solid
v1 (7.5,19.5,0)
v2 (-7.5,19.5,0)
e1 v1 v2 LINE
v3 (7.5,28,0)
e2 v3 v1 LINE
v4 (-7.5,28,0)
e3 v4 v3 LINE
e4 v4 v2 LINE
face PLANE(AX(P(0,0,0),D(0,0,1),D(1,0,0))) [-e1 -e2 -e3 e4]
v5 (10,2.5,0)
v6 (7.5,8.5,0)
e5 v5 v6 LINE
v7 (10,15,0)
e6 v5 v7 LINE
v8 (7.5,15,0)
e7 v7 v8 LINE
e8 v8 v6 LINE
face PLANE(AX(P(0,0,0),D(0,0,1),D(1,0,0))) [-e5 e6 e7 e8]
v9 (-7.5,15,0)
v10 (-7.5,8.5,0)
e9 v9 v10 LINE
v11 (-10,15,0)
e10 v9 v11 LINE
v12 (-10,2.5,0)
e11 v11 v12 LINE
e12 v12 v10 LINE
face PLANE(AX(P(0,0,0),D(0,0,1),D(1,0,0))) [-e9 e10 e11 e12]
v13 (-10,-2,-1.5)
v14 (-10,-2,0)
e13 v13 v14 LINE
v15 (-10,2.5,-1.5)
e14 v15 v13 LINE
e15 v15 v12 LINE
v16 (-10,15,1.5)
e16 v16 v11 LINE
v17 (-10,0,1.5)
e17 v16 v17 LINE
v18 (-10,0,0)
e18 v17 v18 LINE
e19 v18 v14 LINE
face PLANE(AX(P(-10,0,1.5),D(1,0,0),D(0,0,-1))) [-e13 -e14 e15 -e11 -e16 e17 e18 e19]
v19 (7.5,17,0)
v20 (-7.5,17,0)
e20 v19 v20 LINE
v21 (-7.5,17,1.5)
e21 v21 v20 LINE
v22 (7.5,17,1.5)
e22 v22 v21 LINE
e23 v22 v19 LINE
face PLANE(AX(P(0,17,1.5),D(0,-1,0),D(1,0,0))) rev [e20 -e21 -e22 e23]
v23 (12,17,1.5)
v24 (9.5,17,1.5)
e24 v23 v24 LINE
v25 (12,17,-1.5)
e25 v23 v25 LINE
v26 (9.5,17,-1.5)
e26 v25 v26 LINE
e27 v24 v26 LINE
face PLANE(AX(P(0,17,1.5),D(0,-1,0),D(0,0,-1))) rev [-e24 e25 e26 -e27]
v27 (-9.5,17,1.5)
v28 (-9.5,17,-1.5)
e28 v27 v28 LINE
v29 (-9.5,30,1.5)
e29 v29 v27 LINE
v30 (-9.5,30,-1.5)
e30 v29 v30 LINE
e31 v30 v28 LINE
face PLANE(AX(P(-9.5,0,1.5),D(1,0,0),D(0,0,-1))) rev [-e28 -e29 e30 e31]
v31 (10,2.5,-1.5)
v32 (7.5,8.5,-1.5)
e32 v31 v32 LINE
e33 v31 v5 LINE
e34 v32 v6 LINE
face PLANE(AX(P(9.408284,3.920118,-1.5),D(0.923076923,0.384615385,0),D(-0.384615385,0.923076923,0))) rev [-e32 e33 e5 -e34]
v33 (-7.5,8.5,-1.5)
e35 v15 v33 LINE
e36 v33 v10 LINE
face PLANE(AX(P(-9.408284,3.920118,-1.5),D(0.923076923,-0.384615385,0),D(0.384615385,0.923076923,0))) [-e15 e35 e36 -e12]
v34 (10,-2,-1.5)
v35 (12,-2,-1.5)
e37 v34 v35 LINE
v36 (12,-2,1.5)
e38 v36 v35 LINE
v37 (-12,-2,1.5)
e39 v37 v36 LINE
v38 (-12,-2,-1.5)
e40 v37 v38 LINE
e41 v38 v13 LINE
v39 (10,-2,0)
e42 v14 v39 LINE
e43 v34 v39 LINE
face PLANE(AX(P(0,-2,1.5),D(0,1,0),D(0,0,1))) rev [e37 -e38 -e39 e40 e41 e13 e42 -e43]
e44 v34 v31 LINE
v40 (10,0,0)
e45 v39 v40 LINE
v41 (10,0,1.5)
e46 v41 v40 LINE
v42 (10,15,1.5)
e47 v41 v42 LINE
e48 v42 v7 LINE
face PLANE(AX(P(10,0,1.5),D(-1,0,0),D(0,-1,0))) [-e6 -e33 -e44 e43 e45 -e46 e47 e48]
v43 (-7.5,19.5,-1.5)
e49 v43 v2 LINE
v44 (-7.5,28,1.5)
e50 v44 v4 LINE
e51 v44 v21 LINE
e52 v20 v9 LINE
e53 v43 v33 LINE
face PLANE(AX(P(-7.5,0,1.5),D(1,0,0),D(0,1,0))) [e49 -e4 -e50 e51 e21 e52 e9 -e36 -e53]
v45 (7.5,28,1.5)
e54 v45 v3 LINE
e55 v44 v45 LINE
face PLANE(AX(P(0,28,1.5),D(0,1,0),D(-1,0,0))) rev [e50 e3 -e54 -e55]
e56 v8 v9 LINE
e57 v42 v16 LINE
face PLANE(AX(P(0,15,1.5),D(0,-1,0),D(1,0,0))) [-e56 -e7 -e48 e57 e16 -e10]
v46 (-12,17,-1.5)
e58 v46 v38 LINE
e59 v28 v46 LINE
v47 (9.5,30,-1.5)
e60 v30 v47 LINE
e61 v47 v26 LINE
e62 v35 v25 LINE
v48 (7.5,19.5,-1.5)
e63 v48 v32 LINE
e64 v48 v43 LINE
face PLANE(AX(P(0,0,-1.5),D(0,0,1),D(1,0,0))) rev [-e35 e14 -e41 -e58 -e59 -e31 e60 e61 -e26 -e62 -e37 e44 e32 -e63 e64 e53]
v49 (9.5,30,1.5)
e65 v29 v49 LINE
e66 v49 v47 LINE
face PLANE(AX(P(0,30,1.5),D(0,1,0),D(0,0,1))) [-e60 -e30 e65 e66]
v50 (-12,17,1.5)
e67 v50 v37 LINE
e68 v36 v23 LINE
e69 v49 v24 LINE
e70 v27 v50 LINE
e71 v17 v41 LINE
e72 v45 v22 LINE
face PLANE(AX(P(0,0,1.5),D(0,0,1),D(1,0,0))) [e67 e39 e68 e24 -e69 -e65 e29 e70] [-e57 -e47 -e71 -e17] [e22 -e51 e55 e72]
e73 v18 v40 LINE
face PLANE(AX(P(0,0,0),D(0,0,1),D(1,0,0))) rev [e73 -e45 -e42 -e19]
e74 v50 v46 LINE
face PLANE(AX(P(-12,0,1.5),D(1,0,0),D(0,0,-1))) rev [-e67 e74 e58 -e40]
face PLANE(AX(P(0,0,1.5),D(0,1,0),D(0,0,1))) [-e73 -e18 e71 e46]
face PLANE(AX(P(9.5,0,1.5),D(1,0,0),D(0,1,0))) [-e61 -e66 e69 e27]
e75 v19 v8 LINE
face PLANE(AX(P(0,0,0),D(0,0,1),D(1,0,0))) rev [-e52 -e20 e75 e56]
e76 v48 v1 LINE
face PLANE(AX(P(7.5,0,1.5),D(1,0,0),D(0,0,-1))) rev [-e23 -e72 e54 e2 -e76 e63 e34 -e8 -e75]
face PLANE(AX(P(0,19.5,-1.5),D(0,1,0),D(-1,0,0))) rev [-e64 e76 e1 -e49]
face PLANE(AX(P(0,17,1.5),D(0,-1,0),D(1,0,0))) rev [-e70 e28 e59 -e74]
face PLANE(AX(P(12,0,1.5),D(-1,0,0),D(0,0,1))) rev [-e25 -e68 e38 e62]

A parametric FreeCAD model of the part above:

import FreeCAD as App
import Part
import Sketcher
from FreeCAD import Vector

doc = App.newDocument("Part")
body = doc.addObject("PartDesign::Body", "Body")

sketch1 = body.newObject("Sketcher::SketchObject", "Sketch")
sketch1.AttachmentSupport = (doc.getObject("XY_Plane"), [""])
sketch1.MapMode = "FlatFace"
sketch1.addGeometry([
    Part.LineSegment(Vector(12, -2, 0), Vector(12, 17, 0)),
    Part.LineSegment(Vector(12, 17, 0), Vector(9.5, 17, 0)),
    Part.LineSegment(Vector(9.5, 17, 0), Vector(9.5, 30, 0)),
    Part.LineSegment(Vector(9.5, 30, 0), Vector(-9.5, 30, 0)),
    Part.LineSegment(Vector(-9.5, 30, 0), Vector(-9.5, 17, 0)),
    Part.LineSegment(Vector(-9.5, 17, 0), Vector(-12, 17, 0)),
    Part.LineSegment(Vector(-12, 17, 0), Vector(-12, -2, 0)),
    Part.LineSegment(Vector(-12, -2, 0), Vector(12, -2, 0)),
    Part.LineSegment(Vector(7.5, 17, 0), Vector(-7.5, 17, 0)),
    Part.LineSegment(Vector(-7.5, 17, 0), Vector(-7.5, 28, 0)),
    Part.LineSegment(Vector(-7.5, 28, 0), Vector(7.5, 28, 0)),
    Part.LineSegment(Vector(7.5, 28, 0), Vector(7.5, 17, 0)),
    Part.LineSegment(Vector(10, 15, 0), Vector(10, 0, 0)),
    Part.LineSegment(Vector(10, 0, 0), Vector(-10, 0, 0)),
    Part.LineSegment(Vector(-10, 0, 0), Vector(-10, 15, 0)),
    Part.LineSegment(Vector(-10, 15, 0), Vector(10, 15, 0)),
], False)
sketch1.addConstraint([
    Sketcher.Constraint("Coincident", 0, 2, 1, 1),
    Sketcher.Constraint("Coincident", 1, 2, 2, 1),
    Sketcher.Constraint("Coincident", 2, 2, 3, 1),
    Sketcher.Constraint("Coincident", 3, 2, 4, 1),
    Sketcher.Constraint("Coincident", 4, 2, 5, 1),
    Sketcher.Constraint("Coincident", 5, 2, 6, 1),
    Sketcher.Constraint("Coincident", 6, 2, 7, 1),
    Sketcher.Constraint("Coincident", 7, 2, 0, 1),
    Sketcher.Constraint("Coincident", 8, 2, 9, 1),
    Sketcher.Constraint("Coincident", 9, 2, 10, 1),
    Sketcher.Constraint("Coincident", 10, 2, 11, 1),
    Sketcher.Constraint("Coincident", 11, 2, 8, 1),
    Sketcher.Constraint("Coincident", 12, 2, 13, 1),
    Sketcher.Constraint("Coincident", 13, 2, 14, 1),
    Sketcher.Constraint("Coincident", 14, 2, 15, 1),
    Sketcher.Constraint("Coincident", 15, 2, 12, 1),
    Sketcher.Constraint("Vertical", 0),
    Sketcher.Constraint("Horizontal", 1),
    Sketcher.Constraint("Vertical", 2),
    Sketcher.Constraint("Horizontal", 3),
    Sketcher.Constraint("Vertical", 4),
    Sketcher.Constraint("Horizontal", 5),
    Sketcher.Constraint("Vertical", 6),
    Sketcher.Constraint("Horizontal", 7),
    Sketcher.Constraint("Horizontal", 8),
    Sketcher.Constraint("Vertical", 9),
    Sketcher.Constraint("Horizontal", 10),
    Sketcher.Constraint("Vertical", 11),
    Sketcher.Constraint("Vertical", 12),
    Sketcher.Constraint("Horizontal", 13),
    Sketcher.Constraint("Vertical", 14),
    Sketcher.Constraint("Horizontal", 15),
    Sketcher.Constraint("Symmetric", 12, 2, 13, 2, -1, 1),
    Sketcher.Constraint("Symmetric", 1, 2, 4, 2, -2),
    Sketcher.Constraint("Horizontal", 5, 2, 8, 2),
    Sketcher.Constraint("Equal", 1, 5),
    Sketcher.Constraint("Equal", 3, 0),
    Sketcher.Constraint("Equal", 10, 12),
    Sketcher.Constraint("DistanceX", 3, 2, 3, 1, 19.0),
    Sketcher.Constraint("DistanceX", 7, 1, 7, 2, 24.0),
    Sketcher.Constraint("DistanceX", 8, 2, 8, 1, 15.0),
    Sketcher.Constraint("DistanceX", 13, 2, 13, 1, 20.0),
    Sketcher.Constraint("DistanceY", 2, 1, 2, 2, 13.0),
    Sketcher.Constraint("DistanceY", 9, 1, 9, 2, 11.0),
    Sketcher.Constraint("DistanceY", -1, 1, 0, 2, 17.0),
    Sketcher.Constraint("DistanceX", 4, 2, 8, 2, 2.0),
])
pad1 = body.newObject("PartDesign::Pad", "Pad")
pad1.Profile = sketch1
pad1.Length = 1.5

sketch2 = body.newObject("Sketcher::SketchObject", "Sketch001")
sketch2.AttachmentSupport = (doc.getObject("XY_Plane"), [""])
sketch2.MapMode = "FlatFace"
sketch2.addGeometry([
    Part.LineSegment(Vector(10, 2.5, 0), Vector(10, -2, 0)),
    Part.LineSegment(Vector(10, -2, 0), Vector(12, -2, 0)),
    Part.LineSegment(Vector(12, -2, 0), Vector(12, 17, 0)),
    Part.LineSegment(Vector(12, 17, 0), Vector(9.5, 17, 0)),
    Part.LineSegment(Vector(9.5, 17, 0), Vector(9.5, 30, 0)),
    Part.LineSegment(Vector(9.5, 30, 0), Vector(-9.5, 30, 0)),
    Part.LineSegment(Vector(-9.5, 30, 0), Vector(-9.5, 17, 0)),
    Part.LineSegment(Vector(-9.5, 17, 0), Vector(-12, 17, 0)),
    Part.LineSegment(Vector(-12, 17, 0), Vector(-12, -2, 0)),
    Part.LineSegment(Vector(-12, -2, 0), Vector(-10, -2, 0)),
    Part.LineSegment(Vector(-10, -2, 0), Vector(-10, 2.5, 0)),
    Part.LineSegment(Vector(-10, 2.5, 0), Vector(-7.5, 8.5, 0)),
    Part.LineSegment(Vector(-7.5, 8.5, 0), Vector(-7.5, 19.5, 0)),
    Part.LineSegment(Vector(-7.5, 19.5, 0), Vector(7.5, 19.5, 0)),
    Part.LineSegment(Vector(7.5, 19.5, 0), Vector(7.5, 8.5, 0)),
    Part.LineSegment(Vector(7.5, 8.5, 0), Vector(10, 2.5, 0)),
], False)
sketch2.addConstraint([
    Sketcher.Constraint("Coincident", 0, 2, 1, 1),
    Sketcher.Constraint("Coincident", 1, 2, 2, 1),
    Sketcher.Constraint("Coincident", 2, 2, 3, 1),
    Sketcher.Constraint("Coincident", 3, 2, 4, 1),
    Sketcher.Constraint("Coincident", 4, 2, 5, 1),
    Sketcher.Constraint("Coincident", 5, 2, 6, 1),
    Sketcher.Constraint("Coincident", 6, 2, 7, 1),
    Sketcher.Constraint("Coincident", 7, 2, 8, 1),
    Sketcher.Constraint("Coincident", 8, 2, 9, 1),
    Sketcher.Constraint("Coincident", 9, 2, 10, 1),
    Sketcher.Constraint("Coincident", 10, 2, 11, 1),
    Sketcher.Constraint("Coincident", 11, 2, 12, 1),
    Sketcher.Constraint("Coincident", 12, 2, 13, 1),
    Sketcher.Constraint("Coincident", 13, 2, 14, 1),
    Sketcher.Constraint("Coincident", 14, 2, 15, 1),
    Sketcher.Constraint("Coincident", 15, 2, 0, 1),
    Sketcher.Constraint("Vertical", 0),
    Sketcher.Constraint("Horizontal", 1),
    Sketcher.Constraint("Vertical", 2),
    Sketcher.Constraint("Horizontal", 3),
    Sketcher.Constraint("Vertical", 4),
    Sketcher.Constraint("Horizontal", 5),
    Sketcher.Constraint("Vertical", 6),
    Sketcher.Constraint("Horizontal", 7),
    Sketcher.Constraint("Vertical", 8),
    Sketcher.Constraint("Horizontal", 9),
    Sketcher.Constraint("Vertical", 10),
    Sketcher.Constraint("Vertical", 12),
    Sketcher.Constraint("Horizontal", 13),
    Sketcher.Constraint("Vertical", 14),
    Sketcher.Constraint("Symmetric", 3, 2, 6, 2, -2),
    Sketcher.Constraint("Symmetric", 1, 2, 8, 2, -2),
    Sketcher.Constraint("Symmetric", 11, 2, 14, 2, -2),
    Sketcher.Constraint("Symmetric", 10, 2, 15, 2, -2),
    Sketcher.Constraint("Equal", 5, 2),
    Sketcher.Constraint("DistanceX", 1, 1, 1, 2, 2.0),
    Sketcher.Constraint("DistanceX", 5, 2, 5, 1, 19.0),
    Sketcher.Constraint("DistanceX", 13, 1, 13, 2, 15.0),
    Sketcher.Constraint("DistanceY", 4, 1, 4, 2, 13.0),
    Sketcher.Constraint("DistanceY", 12, 1, 12, 2, 11.0),
    Sketcher.Constraint("DistanceX", 3, 2, 3, 1, 2.5),
    Sketcher.Constraint("DistanceY", 0, 2, 0, 1, 4.5),
    Sketcher.Constraint("DistanceY", 0, 2, -1, 1, 2.0),
    Sketcher.Constraint("DistanceY", 10, 2, 11, 2, 6.0),
])
pad2 = body.newObject("PartDesign::Pad", "Pad001")
pad2.Profile = sketch2
pad2.Length = 1.5
pad2.Reversed = True

doc.recompute()
